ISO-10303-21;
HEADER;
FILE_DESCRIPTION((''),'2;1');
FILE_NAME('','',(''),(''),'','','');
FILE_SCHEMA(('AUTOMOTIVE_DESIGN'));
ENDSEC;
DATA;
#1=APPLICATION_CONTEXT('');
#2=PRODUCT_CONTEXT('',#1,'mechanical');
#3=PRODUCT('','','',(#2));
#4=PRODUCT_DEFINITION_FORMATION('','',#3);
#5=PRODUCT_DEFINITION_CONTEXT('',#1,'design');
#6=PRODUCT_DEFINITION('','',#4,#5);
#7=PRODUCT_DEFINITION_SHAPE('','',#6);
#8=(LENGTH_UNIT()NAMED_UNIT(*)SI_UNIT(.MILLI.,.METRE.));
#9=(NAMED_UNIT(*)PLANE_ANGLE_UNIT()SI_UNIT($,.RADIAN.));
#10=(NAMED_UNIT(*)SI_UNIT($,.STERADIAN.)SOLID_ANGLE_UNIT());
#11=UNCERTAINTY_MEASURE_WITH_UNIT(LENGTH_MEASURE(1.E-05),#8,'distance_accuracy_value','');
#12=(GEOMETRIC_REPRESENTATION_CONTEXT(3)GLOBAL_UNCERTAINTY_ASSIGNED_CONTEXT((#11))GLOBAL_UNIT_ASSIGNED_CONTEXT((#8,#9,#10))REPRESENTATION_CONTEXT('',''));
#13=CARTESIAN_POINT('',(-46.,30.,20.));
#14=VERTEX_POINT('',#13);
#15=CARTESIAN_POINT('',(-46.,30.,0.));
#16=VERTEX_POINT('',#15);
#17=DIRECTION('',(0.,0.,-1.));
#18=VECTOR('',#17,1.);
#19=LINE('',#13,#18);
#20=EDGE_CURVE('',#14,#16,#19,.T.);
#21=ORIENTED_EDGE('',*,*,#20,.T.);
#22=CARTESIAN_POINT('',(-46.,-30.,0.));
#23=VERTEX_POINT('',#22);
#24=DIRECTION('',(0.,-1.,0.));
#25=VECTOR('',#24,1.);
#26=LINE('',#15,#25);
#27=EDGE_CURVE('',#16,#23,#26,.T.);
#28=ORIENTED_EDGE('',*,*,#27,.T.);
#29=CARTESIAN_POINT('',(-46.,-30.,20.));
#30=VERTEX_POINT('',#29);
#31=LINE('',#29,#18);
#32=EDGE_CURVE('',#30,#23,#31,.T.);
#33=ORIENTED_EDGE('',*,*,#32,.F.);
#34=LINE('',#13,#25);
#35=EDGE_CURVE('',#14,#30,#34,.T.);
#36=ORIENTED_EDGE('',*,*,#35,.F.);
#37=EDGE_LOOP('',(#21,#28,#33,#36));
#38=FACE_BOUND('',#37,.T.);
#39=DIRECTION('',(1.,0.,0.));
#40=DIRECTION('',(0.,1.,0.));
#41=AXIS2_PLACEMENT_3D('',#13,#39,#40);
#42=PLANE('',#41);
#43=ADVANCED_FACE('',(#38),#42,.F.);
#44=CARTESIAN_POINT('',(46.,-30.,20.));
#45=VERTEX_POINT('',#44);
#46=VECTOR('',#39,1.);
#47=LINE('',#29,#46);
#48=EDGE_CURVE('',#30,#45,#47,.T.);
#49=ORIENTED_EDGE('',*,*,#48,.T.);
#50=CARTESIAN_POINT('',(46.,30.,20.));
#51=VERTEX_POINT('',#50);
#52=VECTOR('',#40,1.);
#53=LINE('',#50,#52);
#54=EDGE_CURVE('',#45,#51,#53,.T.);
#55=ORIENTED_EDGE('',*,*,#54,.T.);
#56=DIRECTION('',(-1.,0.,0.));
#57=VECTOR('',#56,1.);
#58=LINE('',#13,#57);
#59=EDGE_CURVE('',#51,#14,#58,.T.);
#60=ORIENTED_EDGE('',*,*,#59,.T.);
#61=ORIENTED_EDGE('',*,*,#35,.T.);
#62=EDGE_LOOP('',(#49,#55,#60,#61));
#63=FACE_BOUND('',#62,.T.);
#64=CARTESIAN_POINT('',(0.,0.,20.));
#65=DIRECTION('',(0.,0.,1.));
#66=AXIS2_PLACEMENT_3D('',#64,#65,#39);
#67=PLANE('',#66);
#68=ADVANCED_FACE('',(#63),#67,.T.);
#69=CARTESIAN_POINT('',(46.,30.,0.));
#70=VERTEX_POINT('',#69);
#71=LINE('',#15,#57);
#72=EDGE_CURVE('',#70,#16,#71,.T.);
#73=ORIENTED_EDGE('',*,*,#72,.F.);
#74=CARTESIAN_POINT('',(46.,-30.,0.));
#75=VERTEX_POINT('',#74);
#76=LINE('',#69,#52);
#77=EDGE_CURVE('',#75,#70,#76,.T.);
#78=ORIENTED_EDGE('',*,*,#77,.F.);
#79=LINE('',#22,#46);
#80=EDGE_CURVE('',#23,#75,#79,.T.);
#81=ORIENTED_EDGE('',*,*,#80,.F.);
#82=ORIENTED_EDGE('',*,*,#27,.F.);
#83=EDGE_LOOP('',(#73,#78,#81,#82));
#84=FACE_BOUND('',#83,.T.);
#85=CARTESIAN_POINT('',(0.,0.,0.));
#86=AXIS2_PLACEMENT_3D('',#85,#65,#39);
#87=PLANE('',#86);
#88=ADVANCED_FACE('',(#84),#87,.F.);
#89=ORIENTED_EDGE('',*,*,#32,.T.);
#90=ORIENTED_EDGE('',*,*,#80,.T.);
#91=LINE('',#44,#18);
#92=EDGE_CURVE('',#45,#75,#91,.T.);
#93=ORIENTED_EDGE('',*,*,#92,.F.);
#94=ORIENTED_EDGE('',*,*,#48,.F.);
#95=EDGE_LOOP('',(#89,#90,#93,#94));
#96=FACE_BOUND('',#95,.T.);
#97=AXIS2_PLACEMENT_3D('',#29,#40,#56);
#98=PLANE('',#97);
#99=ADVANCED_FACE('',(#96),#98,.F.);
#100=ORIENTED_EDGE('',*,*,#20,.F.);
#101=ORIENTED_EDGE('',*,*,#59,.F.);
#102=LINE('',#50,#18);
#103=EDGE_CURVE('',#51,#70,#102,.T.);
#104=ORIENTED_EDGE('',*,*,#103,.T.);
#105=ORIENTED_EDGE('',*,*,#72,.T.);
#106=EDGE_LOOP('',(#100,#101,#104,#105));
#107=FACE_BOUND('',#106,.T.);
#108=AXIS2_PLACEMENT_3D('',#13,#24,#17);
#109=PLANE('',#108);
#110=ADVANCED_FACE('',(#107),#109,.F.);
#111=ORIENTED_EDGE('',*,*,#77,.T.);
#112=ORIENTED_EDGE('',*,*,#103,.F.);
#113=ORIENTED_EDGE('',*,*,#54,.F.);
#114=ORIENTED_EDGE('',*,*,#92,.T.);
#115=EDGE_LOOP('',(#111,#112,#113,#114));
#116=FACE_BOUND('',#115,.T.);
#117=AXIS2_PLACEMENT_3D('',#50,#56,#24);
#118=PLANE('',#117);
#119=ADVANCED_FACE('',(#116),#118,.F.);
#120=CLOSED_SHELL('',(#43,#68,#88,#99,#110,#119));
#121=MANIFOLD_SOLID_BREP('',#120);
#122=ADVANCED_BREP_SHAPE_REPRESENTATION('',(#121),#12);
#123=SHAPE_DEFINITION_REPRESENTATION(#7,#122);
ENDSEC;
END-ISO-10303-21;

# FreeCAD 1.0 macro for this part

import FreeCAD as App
import Part
import Sketcher

V = App.Vector

doc = App.newDocument("Part")
params = doc.addObject("Spreadsheet::Sheet", "Params")
for row, (alias, value) in enumerate([
    ("sketch1_width", "92 mm"),
    ("sketch1_height", "60 mm"),
    ("pad1_length", "20 mm"),
], start=1):
    params.set(f"A{row}", alias)
    params.set(f"B{row}", "=" + value)
    params.setAlias(f"B{row}", alias)

body = doc.addObject("PartDesign::Body", "Body")

# Sketch on XY plane
sketch1 = body.newObject("Sketcher::SketchObject", "Sketch")
sketch1.AttachmentSupport = (doc.getObject("XY_Plane"), [""])
sketch1.MapMode = "FlatFace"
sketch1.addGeometry([
    Part.LineSegment(V(-46, 30, 0), V(-46, -30, 0)),
    Part.LineSegment(V(-46, -30, 0), V(46, -30, 0)),
    Part.LineSegment(V(46, -30, 0), V(46, 30, 0)),
    Part.LineSegment(V(46, 30, 0), V(-46, 30, 0)),
], False)
sketch1.addConstraint([
    Sketcher.Constraint("Coincident", 0, 2, 1, 1),
    Sketcher.Constraint("Coincident", 1, 2, 2, 1),
    Sketcher.Constraint("Coincident", 2, 2, 3, 1),
    Sketcher.Constraint("Coincident", 3, 2, 0, 1),
    Sketcher.Constraint("Vertical", 0),
    Sketcher.Constraint("Horizontal", 1),
    Sketcher.Constraint("Vertical", 2),
    Sketcher.Constraint("Horizontal", 3),
    Sketcher.Constraint("Symmetric", 0, 2, 2, 2, -1, 1),
    Sketcher.Constraint("DistanceX", 1, 1, 1, 2, 92.0),
    Sketcher.Constraint("DistanceY", 0, 2, 0, 1, 60.0),
])
sketch1.setExpression("Constraints[9]", "Params.sketch1_width")
sketch1.setExpression("Constraints[10]", "Params.sketch1_height")
pad1 = body.newObject("PartDesign::Pad", "Pad")
pad1.Profile = sketch1
pad1.setExpression("Length", "Params.pad1_length")

doc.recompute()
